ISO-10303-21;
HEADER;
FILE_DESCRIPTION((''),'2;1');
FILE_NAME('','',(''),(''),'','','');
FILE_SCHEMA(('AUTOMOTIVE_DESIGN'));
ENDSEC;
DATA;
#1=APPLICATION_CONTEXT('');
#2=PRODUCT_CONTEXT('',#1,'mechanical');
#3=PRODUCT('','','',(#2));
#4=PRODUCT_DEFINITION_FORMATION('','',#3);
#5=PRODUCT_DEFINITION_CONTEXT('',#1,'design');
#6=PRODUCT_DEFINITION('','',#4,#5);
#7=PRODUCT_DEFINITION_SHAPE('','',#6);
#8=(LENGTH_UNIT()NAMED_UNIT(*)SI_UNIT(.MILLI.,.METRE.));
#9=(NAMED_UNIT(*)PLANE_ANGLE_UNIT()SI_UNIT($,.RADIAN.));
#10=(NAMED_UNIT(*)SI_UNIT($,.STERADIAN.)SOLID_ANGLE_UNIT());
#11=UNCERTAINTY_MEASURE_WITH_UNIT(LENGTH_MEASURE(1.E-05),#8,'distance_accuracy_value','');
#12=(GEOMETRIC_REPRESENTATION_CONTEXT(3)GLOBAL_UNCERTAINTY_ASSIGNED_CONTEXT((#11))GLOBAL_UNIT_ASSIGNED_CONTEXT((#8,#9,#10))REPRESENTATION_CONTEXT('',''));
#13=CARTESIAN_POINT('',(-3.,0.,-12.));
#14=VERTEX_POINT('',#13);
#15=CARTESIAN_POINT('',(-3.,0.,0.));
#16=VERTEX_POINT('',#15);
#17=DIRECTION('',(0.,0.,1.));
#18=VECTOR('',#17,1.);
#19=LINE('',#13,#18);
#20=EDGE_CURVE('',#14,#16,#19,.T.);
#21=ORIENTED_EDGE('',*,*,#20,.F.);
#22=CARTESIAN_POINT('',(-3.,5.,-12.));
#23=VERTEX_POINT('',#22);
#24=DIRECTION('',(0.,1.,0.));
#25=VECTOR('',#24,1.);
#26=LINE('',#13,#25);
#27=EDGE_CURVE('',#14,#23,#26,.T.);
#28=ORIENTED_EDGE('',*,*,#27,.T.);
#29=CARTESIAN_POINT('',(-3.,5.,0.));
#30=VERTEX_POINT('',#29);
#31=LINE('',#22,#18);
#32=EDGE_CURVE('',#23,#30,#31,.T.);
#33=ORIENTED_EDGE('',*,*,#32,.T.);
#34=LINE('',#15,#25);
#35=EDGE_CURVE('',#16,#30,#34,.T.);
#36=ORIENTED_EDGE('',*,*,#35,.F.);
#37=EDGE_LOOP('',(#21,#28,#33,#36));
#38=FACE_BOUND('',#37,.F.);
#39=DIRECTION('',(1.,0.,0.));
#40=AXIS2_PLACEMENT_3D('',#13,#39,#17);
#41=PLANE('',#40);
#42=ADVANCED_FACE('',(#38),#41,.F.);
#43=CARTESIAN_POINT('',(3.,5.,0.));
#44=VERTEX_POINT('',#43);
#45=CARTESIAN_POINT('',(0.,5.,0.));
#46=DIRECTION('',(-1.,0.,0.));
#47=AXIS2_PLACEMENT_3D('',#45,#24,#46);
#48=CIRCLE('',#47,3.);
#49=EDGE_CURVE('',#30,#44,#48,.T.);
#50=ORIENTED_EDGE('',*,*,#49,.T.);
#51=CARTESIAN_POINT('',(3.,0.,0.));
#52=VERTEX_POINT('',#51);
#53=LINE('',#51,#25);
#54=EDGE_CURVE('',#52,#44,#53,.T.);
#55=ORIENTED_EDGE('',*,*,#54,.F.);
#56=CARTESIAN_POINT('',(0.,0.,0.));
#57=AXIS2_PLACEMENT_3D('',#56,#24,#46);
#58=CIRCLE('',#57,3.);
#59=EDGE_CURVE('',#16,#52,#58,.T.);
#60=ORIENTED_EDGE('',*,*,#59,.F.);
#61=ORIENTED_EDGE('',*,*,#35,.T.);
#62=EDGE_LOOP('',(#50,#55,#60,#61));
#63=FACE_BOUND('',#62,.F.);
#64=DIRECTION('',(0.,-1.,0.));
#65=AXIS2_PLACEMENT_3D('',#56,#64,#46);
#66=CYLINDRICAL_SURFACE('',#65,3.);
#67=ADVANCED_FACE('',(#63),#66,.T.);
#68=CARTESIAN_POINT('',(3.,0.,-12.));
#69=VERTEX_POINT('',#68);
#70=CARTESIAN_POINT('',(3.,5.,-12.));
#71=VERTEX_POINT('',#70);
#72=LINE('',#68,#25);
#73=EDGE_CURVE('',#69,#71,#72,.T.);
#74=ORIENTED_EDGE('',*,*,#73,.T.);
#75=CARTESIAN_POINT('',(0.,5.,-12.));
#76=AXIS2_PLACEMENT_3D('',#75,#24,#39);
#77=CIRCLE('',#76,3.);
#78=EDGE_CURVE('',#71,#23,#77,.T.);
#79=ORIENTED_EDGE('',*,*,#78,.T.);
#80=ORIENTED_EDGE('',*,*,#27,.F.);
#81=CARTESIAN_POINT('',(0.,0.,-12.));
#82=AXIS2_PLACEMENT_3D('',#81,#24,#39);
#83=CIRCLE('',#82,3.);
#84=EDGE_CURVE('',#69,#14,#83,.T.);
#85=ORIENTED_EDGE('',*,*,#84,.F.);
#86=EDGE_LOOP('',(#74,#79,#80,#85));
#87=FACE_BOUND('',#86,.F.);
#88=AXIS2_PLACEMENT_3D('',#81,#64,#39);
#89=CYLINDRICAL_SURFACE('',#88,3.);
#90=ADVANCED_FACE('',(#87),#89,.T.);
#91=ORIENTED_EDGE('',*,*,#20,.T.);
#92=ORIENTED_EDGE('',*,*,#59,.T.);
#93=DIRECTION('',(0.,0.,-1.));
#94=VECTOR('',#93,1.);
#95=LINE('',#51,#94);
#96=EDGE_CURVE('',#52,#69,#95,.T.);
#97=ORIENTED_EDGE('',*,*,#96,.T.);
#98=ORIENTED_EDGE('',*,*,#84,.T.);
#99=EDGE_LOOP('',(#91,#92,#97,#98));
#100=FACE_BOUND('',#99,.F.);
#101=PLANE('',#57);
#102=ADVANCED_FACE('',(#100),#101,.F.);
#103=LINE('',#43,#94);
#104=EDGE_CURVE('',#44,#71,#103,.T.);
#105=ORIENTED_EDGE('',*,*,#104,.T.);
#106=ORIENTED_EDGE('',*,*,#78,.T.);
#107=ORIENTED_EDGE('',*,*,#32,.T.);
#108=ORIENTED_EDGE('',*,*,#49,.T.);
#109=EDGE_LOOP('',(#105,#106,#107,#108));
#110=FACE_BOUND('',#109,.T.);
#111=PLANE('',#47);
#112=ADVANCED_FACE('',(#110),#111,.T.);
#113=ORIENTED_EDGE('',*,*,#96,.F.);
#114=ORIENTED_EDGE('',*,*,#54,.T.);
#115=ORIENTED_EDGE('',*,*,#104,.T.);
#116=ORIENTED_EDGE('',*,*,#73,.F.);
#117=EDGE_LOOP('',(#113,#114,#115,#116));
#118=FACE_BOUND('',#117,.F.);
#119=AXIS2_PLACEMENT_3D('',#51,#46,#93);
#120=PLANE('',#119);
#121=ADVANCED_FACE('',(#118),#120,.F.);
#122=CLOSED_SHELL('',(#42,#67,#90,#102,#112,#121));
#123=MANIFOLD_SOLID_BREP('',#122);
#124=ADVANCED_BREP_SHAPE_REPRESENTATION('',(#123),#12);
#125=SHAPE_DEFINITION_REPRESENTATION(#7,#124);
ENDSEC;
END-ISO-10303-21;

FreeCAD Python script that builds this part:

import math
import FreeCAD as App
import Part
import Sketcher
from FreeCAD import Vector
Q = App.Units.Quantity

doc = App.newDocument("Part")
params = doc.addObject("Spreadsheet::Sheet", "Params")
for row, (alias, value) in enumerate([
    ("sketch1_radius", "3 mm"),
    ("sketch1_height", "12 mm"),
    ("pad1_length", "5 mm"),
], start=1):
    params.set(f"A{row}", alias)
    params.set(f"B{row}", "=" + value)
    params.setAlias(f"B{row}", alias)

body = doc.addObject("PartDesign::Body", "Body")

# Sketch on XZ plane
sketch1 = body.newObject("Sketcher::SketchObject", "Sketch")
sketch1.AttachmentSupport = (doc.getObject("XZ_Plane"), [""])
sketch1.MapMode = "FlatFace"
sketch1.addGeometry([
    Part.ArcOfCircle(Part.Circle(Vector(0, 0, 0), Vector(0, 0, 1), 3), math.radians(0), math.radians(180)),
    Part.LineSegment(Vector(3, 0, 0), Vector(3, -12, 0)),
    Part.ArcOfCircle(Part.Circle(Vector(0, -12, 0), Vector(0, 0, 1), 3), math.radians(180), math.radians(360)),
    Part.LineSegment(Vector(-3, -12, 0), Vector(-3, 0, 0)),
], False)
sketch1.addConstraint([
    Sketcher.Constraint("Tangent", 0, 1, 1, 1),
    Sketcher.Constraint("Tangent", 1, 2, 2, 2),
    Sketcher.Constraint("Tangent", 2, 1, 3, 1),
    Sketcher.Constraint("Tangent", 3, 2, 0, 2),
    Sketcher.Constraint("Vertical", 1),
    Sketcher.Constraint("Vertical", 3),
    Sketcher.Constraint("Coincident", 0, 3, -1, 1),
    Sketcher.Constraint("Radius", 0, Q("3 mm")),
    Sketcher.Constraint("DistanceY", 1, 2, 1, 1, Q("12 mm")),
])
sketch1.setExpression("Constraints[7]", "Params.sketch1_radius")
sketch1.setExpression("Constraints[8]", "Params.sketch1_height")
pad1 = body.newObject("PartDesign::Pad", "Pad")
pad1.Profile = sketch1
pad1.setExpression("Length", "Params.pad1_length")
pad1.Reversed = True

doc.recompute()
